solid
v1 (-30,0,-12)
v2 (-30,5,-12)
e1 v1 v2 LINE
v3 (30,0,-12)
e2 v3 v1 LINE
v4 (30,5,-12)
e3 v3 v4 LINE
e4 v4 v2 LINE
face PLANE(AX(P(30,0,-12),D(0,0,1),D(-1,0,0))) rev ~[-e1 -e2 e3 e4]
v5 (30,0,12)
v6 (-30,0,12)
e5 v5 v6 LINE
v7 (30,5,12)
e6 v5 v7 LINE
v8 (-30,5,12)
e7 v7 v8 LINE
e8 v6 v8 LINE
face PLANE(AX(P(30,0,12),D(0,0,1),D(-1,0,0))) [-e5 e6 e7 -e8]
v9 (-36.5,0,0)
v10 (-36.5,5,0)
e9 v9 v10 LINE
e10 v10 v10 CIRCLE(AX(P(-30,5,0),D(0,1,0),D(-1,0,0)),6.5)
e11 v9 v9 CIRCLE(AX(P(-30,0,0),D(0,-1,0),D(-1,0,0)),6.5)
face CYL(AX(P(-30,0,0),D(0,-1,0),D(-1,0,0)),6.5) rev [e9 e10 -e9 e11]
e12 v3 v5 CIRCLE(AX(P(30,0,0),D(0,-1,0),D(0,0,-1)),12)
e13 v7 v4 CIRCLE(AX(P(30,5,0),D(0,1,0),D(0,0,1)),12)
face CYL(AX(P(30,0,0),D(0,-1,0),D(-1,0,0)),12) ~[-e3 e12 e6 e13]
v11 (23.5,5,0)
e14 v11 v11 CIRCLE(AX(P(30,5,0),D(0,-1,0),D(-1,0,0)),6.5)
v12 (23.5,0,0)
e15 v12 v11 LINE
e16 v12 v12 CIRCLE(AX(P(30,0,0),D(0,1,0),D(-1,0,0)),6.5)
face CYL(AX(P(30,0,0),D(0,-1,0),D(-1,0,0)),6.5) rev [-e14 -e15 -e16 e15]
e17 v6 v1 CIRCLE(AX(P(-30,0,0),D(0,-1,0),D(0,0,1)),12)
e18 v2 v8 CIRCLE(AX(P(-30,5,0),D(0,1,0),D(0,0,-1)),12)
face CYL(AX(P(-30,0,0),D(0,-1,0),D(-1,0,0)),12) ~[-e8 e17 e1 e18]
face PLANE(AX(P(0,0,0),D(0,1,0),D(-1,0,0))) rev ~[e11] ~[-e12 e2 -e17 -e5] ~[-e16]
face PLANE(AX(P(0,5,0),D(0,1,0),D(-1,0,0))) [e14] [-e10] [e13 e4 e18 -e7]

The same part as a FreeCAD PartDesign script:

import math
import FreeCAD as App
import Part
import Sketcher
from FreeCAD import Vector
Q = App.Units.Quantity

doc = App.newDocument("Part")
body = doc.addObject("PartDesign::Body", "Body")

# Sketch on XZ plane
sketch1 = doc.addObject("Sketcher::SketchObject", "Sketch")
body.addObject(sketch1)
sketch1.AttachmentSupport = (doc.XZ_Plane, [""])
sketch1.MapMode = "FlatFace"
sketch1.addGeometry(Part.LineSegment(Vector(-30, 12, 0), Vector(30, 12, 0)), False)
sketch1.addGeometry(Part.ArcOfCircle(Part.Circle(Vector(30, 0, 0), Vector(0, 0, 1), 12), math.radians(-90), math.radians(90)), False)
sketch1.addGeometry(Part.LineSegment(Vector(30, -12, 0), Vector(-30, -12, 0)), False)
sketch1.addGeometry(Part.ArcOfCircle(Part.Circle(Vector(-30, 0, 0), Vector(0, 0, 1), 12), math.radians(90), math.radians(270)), False)
sketch1.addGeometry(Part.Circle(Vector(-30, 0, 0), Vector(0, 0, 1), 6), False)
sketch1.addGeometry(Part.Circle(Vector(30, 0, 0), Vector(0, 0, 1), 6), False)
sketch1.addConstraint(Sketcher.Constraint("Tangent", 0, 2, 1, 2))
sketch1.addConstraint(Sketcher.Constraint("Tangent", 1, 1, 2, 1))
sketch1.addConstraint(Sketcher.Constraint("Tangent", 2, 2, 3, 2))
sketch1.addConstraint(Sketcher.Constraint("Tangent", 3, 1, 0, 1))
sketch1.addConstraint(Sketcher.Constraint("Horizontal", 0))
sketch1.addConstraint(Sketcher.Constraint("Horizontal", 2))
sketch1.addConstraint(Sketcher.Constraint("Coincident", 4, 3, 3, 3))
sketch1.addConstraint(Sketcher.Constraint("Coincident", 5, 3, 1, 3))
sketch1.addConstraint(Sketcher.Constraint("Equal", 4, 5))
sketch1.addConstraint(Sketcher.Constraint("Symmetric", 1, 3, 3, 3, -1, 1))
sketch1.addConstraint(Sketcher.Constraint("Diameter", 4, Q("13 mm")))
sketch1.addConstraint(Sketcher.Constraint("Radius", 1, Q("12 mm")))
sketch1.addConstraint(Sketcher.Constraint("DistanceX", 0, 1, 0, 2, Q("60 mm")))
pad1 = doc.addObject("PartDesign::Pad", "Pad")
body.addObject(pad1)
pad1.Profile = sketch1
pad1.Length = 5
pad1.Reversed = True

doc.recompute()
